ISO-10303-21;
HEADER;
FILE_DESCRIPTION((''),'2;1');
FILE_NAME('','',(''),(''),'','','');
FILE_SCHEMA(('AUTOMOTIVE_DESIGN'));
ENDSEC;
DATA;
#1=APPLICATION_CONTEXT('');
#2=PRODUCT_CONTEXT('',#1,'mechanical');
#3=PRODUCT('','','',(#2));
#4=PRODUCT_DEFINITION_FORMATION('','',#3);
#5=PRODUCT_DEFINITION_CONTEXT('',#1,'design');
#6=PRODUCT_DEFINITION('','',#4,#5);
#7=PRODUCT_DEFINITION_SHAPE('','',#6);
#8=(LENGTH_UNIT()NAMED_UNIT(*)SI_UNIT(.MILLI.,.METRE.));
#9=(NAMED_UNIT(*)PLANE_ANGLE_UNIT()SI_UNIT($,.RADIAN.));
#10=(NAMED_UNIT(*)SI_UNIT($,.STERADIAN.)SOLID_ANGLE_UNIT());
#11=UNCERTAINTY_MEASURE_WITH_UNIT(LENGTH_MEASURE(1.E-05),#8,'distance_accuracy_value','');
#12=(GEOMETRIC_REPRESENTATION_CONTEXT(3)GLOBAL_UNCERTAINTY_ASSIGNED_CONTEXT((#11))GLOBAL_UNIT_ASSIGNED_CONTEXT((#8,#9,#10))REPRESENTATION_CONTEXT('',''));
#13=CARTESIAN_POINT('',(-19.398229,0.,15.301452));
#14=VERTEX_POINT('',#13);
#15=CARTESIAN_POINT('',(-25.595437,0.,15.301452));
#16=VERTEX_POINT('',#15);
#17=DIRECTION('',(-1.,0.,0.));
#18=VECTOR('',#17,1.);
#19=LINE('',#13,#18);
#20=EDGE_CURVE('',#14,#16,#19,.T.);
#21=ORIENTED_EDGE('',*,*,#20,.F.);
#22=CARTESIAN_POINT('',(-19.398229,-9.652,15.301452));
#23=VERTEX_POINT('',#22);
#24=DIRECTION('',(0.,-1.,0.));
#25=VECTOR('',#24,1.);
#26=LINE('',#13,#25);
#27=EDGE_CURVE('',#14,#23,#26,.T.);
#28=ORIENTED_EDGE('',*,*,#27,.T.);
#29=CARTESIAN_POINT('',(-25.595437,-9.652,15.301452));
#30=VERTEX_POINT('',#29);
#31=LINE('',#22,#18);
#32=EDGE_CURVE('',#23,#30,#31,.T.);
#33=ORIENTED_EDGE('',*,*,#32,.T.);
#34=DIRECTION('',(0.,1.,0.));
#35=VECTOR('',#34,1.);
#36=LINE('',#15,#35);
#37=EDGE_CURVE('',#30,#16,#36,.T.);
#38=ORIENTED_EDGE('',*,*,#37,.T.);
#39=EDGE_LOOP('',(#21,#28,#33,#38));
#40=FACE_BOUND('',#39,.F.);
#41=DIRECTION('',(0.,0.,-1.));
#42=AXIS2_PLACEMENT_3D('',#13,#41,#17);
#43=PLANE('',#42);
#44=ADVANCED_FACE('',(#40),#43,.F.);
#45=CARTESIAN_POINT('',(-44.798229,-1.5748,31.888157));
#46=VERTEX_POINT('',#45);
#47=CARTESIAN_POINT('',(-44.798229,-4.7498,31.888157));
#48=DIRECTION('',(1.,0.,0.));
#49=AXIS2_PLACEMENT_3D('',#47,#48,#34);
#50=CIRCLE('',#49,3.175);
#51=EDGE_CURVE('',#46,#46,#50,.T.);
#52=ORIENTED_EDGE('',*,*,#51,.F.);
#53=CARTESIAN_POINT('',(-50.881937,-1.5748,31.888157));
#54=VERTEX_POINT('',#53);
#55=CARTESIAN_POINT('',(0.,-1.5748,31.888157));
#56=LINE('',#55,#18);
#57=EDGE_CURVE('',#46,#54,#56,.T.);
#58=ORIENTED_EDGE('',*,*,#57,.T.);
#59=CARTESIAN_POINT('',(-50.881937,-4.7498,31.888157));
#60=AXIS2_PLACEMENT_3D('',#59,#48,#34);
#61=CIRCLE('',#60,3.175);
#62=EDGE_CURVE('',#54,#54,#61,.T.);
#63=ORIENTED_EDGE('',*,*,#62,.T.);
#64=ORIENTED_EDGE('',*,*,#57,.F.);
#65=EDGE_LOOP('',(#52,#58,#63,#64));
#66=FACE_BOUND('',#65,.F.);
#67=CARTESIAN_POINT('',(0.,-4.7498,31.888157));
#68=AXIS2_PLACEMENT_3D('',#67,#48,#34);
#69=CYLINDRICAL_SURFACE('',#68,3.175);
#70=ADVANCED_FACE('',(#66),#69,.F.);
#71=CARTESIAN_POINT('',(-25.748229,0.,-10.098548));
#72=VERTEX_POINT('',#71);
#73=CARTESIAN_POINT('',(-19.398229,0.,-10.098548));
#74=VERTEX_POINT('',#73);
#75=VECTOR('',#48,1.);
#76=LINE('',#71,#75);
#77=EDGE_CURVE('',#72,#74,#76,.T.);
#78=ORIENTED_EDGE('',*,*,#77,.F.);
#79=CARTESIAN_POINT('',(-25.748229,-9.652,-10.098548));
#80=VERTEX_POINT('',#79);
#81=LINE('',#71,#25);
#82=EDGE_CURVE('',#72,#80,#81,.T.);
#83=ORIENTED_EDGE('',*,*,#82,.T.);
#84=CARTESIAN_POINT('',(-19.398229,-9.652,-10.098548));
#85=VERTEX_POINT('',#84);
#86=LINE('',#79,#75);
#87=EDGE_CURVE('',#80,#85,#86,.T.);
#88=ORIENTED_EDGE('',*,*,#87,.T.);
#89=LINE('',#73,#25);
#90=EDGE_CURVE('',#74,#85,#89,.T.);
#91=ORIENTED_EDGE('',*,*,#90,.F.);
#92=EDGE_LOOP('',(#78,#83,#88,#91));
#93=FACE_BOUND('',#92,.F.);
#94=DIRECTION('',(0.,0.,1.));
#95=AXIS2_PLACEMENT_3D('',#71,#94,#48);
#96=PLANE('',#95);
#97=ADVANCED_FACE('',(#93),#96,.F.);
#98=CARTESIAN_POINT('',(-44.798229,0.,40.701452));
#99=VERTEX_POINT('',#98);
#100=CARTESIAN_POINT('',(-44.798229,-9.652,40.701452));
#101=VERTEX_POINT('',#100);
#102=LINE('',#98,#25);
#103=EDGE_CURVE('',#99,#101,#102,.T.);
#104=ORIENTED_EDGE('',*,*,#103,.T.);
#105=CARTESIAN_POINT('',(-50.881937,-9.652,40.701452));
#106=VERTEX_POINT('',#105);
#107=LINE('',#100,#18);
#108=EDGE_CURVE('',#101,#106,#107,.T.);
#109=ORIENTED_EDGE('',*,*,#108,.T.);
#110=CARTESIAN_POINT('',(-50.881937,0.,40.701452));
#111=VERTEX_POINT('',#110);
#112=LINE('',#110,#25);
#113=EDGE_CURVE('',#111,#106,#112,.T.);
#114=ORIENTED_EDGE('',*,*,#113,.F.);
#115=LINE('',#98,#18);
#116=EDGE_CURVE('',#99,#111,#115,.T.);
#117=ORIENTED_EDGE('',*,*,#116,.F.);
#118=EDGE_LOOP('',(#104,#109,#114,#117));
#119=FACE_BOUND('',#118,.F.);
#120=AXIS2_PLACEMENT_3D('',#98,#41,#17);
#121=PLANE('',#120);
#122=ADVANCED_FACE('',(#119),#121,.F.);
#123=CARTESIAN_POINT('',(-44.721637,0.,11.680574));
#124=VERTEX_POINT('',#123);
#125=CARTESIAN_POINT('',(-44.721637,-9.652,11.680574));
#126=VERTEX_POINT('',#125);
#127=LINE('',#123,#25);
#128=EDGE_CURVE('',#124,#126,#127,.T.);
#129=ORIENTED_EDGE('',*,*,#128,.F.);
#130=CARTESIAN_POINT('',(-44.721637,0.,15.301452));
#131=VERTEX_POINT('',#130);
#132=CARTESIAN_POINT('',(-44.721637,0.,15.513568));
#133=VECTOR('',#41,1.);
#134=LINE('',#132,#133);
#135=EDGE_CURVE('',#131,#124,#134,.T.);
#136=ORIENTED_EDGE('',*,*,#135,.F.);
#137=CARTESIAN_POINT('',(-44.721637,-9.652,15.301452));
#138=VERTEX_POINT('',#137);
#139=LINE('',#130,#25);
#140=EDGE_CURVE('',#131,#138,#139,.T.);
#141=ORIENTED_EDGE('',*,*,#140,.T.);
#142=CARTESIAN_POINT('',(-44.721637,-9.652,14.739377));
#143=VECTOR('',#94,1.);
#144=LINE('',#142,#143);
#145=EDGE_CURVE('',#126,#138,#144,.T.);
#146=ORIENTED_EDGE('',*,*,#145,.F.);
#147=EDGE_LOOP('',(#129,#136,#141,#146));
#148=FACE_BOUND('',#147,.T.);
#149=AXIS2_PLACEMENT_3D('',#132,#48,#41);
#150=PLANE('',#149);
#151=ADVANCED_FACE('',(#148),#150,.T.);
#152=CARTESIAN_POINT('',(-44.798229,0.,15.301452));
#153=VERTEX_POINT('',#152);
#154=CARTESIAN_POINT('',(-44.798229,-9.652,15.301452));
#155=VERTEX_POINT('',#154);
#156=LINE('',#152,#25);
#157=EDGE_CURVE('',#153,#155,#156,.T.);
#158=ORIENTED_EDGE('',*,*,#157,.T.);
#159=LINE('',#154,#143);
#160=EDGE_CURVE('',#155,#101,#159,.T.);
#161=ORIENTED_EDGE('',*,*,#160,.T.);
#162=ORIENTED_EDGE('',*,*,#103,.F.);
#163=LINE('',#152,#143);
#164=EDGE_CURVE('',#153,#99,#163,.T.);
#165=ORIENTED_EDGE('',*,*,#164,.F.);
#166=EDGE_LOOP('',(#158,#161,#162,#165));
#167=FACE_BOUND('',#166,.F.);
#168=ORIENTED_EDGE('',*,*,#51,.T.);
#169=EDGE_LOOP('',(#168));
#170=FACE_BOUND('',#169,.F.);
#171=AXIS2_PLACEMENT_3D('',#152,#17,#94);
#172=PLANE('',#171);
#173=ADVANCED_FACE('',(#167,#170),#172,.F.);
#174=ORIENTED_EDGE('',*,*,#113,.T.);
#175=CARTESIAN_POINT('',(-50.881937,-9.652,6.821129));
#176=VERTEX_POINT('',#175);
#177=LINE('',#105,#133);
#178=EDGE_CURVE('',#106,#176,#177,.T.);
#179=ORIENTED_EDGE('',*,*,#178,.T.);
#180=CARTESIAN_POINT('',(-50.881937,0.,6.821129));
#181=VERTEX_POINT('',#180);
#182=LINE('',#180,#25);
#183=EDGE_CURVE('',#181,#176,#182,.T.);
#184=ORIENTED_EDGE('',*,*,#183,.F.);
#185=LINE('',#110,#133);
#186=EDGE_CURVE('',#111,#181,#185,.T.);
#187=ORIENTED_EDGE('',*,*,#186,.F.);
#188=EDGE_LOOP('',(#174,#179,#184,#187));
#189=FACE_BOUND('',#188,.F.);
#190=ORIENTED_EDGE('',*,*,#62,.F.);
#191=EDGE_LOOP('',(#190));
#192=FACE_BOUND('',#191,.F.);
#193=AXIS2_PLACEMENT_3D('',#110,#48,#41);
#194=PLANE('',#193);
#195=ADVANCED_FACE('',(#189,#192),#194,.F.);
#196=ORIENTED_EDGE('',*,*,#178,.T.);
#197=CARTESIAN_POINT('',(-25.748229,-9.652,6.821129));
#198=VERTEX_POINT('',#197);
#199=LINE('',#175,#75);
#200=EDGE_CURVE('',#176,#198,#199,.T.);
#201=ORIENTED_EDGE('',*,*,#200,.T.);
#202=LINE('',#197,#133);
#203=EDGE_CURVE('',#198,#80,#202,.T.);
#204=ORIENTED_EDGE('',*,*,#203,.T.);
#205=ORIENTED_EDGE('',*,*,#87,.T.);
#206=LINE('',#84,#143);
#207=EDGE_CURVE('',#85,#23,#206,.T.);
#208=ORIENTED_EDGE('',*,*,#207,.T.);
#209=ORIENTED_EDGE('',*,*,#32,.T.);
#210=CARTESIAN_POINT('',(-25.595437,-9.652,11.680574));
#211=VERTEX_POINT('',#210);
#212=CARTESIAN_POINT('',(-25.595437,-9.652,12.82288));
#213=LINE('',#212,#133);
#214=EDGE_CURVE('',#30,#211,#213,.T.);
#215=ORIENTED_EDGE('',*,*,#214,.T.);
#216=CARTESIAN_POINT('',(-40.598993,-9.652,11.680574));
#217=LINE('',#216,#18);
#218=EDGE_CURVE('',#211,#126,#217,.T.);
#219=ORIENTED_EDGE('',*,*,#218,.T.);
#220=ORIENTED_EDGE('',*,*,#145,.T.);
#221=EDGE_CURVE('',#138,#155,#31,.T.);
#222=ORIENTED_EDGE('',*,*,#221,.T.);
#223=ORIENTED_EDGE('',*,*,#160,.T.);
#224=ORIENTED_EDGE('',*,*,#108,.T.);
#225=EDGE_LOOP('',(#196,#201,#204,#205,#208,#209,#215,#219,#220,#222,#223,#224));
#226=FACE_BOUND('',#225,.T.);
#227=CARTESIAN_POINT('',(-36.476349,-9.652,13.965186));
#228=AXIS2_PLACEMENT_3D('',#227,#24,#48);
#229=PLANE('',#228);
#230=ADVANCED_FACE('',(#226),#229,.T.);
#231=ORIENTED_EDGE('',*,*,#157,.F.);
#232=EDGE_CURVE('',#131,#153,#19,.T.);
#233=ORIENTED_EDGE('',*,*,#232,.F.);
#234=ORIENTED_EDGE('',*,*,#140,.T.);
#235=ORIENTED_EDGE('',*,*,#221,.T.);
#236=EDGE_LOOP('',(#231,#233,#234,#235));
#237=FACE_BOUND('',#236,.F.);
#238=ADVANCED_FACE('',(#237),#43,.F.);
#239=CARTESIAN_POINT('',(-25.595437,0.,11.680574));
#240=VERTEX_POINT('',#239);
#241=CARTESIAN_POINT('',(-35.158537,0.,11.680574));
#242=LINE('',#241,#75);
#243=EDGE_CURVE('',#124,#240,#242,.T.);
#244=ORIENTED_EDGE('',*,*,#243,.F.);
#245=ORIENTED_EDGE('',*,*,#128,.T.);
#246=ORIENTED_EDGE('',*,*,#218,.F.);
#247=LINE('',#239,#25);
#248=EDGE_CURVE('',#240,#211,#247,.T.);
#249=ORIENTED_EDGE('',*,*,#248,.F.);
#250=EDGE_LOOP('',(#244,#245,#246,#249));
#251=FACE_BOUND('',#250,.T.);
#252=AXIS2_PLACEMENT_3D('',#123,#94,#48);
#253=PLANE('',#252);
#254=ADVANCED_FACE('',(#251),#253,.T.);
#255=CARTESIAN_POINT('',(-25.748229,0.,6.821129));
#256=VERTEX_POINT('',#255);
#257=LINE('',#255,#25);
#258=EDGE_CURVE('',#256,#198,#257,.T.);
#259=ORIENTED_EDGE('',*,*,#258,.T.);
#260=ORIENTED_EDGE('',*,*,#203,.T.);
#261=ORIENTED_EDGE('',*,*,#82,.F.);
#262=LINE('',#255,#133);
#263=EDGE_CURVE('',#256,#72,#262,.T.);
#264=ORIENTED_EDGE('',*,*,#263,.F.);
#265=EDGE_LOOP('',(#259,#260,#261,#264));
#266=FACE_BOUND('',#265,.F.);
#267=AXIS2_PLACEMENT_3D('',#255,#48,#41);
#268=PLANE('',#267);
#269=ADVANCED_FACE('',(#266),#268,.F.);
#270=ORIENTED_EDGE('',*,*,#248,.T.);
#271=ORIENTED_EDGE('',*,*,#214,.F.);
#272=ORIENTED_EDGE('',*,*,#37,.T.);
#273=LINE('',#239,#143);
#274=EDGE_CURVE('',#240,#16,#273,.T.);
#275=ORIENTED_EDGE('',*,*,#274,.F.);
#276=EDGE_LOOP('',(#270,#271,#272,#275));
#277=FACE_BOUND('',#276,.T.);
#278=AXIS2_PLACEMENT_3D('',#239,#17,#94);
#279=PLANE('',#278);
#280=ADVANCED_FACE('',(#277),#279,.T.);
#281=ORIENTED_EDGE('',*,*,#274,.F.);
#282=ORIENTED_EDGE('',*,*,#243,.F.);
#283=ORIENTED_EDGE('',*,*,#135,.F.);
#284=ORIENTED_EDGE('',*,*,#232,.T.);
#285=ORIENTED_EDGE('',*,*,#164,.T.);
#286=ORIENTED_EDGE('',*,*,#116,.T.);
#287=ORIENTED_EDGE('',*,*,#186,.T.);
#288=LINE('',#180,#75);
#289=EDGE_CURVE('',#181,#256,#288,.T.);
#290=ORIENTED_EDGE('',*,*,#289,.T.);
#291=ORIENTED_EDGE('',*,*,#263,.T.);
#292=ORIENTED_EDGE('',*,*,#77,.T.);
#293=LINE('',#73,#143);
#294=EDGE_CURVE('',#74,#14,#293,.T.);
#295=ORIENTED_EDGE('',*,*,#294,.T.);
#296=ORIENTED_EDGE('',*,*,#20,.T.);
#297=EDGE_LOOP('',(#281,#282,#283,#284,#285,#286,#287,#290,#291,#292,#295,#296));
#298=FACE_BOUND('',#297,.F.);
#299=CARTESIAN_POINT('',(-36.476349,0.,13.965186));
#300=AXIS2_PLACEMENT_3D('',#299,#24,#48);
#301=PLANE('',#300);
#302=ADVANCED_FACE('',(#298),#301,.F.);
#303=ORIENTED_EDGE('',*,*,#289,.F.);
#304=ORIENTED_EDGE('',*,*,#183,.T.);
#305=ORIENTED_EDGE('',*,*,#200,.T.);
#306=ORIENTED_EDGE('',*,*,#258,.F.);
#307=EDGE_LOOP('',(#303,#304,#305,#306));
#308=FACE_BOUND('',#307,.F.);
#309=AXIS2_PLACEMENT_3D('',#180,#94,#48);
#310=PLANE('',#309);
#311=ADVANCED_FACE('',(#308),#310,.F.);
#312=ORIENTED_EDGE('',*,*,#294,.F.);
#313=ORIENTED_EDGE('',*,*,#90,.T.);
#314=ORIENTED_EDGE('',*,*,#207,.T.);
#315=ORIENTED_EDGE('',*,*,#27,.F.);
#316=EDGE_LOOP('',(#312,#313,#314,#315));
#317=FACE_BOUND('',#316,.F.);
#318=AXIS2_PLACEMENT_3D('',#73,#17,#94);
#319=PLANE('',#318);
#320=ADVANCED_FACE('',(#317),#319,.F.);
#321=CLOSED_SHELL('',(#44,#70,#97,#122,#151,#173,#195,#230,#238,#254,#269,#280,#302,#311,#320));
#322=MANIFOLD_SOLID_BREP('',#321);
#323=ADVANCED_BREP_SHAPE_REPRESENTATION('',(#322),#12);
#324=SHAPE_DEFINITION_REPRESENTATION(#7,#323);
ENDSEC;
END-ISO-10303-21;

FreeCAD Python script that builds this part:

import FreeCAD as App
import Part
import Sketcher

V = App.Vector
Q = App.Units.Quantity

doc = App.newDocument("Part")
body = doc.addObject("PartDesign::Body", "Body")

# Sketch on XZ plane
sketch1 = body.newObject("Sketcher::SketchObject", "Sketch")
sketch1.AttachmentSupport = (doc.getObject("XZ_Plane"), [""])
sketch1.MapMode = "FlatFace"
sketch1.addGeometry(Part.LineSegment(V(-44.798229, 15.301452, 0), V(-44.798229, 40.701452, 0)), False)
sketch1.addGeometry(Part.LineSegment(V(-44.798229, 40.701452, 0), V(-50.881937, 40.701452, 0)), False)
sketch1.addGeometry(Part.LineSegment(V(-50.881937, 40.701452, 0), V(-50.881937, 6.821129, 0)), False)
sketch1.addGeometry(Part.LineSegment(V(-50.881937, 6.821129, 0), V(-25.748229, 6.821129, 0)), False)
sketch1.addGeometry(Part.LineSegment(V(-25.748229, 6.821129, 0), V(-25.748229, -10.098548, 0)), False)
sketch1.addGeometry(Part.LineSegment(V(-25.748229, -10.098548, 0), V(-19.398229, -10.098548, 0)), False)
sketch1.addGeometry(Part.LineSegment(V(-19.398229, -10.098548, 0), V(-19.398229, 15.301452, 0)), False)
sketch1.addGeometry(Part.LineSegment(V(-19.398229, 15.301452, 0), V(-44.798229, 15.301452, 0)), False)
sketch1.addConstraint(Sketcher.Constraint("Coincident", 0, 2, 1, 1))
sketch1.addConstraint(Sketcher.Constraint("Coincident", 1, 2, 2, 1))
sketch1.addConstraint(Sketcher.Constraint("Coincident", 2, 2, 3, 1))
sketch1.addConstraint(Sketcher.Constraint("Coincident", 3, 2, 4, 1))
sketch1.addConstraint(Sketcher.Constraint("Coincident", 4, 2, 5, 1))
sketch1.addConstraint(Sketcher.Constraint("Coincident", 5, 2, 6, 1))
sketch1.addConstraint(Sketcher.Constraint("Coincident", 6, 2, 7, 1))
sketch1.addConstraint(Sketcher.Constraint("Coincident", 7, 2, 0, 1))
sketch1.addConstraint(Sketcher.Constraint("Vertical", 0))
sketch1.addConstraint(Sketcher.Constraint("Horizontal", 1))
sketch1.addConstraint(Sketcher.Constraint("Vertical", 2))
sketch1.addConstraint(Sketcher.Constraint("Horizontal", 3))
sketch1.addConstraint(Sketcher.Constraint("Vertical", 4))
sketch1.addConstraint(Sketcher.Constraint("Horizontal", 5))
sketch1.addConstraint(Sketcher.Constraint("Vertical", 6))
sketch1.addConstraint(Sketcher.Constraint("Horizontal", 7))
sketch1.addConstraint(Sketcher.Constraint("Equal", 7, 0))
sketch1.addConstraint(Sketcher.Constraint("Equal", 0, 6))
sketch1.addConstraint(Sketcher.Constraint("DistanceX", 7, 2, 7, 1, Q("1 in")))
sketch1.addConstraint(Sketcher.Constraint("DistanceX", 5, 1, 5, 2, Q("0.25 in")))
sketch1.addConstraint(Sketcher.Constraint("DistanceX", 1, 2, 1, 1, 6.083708))
sketch1.addConstraint(Sketcher.Constraint("DistanceY", 2, 2, 2, 1, 33.880323))
sketch1.addConstraint(Sketcher.Constraint("DistanceX", 0, 2, -1, 1, 44.798229))
sketch1.addConstraint(Sketcher.Constraint("DistanceY", -1, 1, 2, 2, 6.821129))
pad1 = body.newObject("PartDesign::Pad", "Pad")
pad1.Profile = sketch1
pad1.Length = Q("0.38 in")

# Sketch on YZ plane
sketch2 = body.newObject("Sketcher::SketchObject", "Sketch001")
sketch2.AttachmentSupport = (doc.getObject("YZ_Plane"), [""])
sketch2.MapMode = "FlatFace"
sketch2.addGeometry(Part.Circle(V(-4.7498, 31.888157, 0), V(0, 0, 1), 3.175), False)
sketch2.addConstraint(Sketcher.Constraint("Diameter", 0, Q("0.25 in")))
sketch2.addConstraint(Sketcher.Constraint("DistanceX", 0, 3, -1, 1, Q("0.187 in")))
sketch2.addConstraint(Sketcher.Constraint("DistanceY", -1, 1, 0, 3, 31.888157))
pocket1 = body.newObject("PartDesign::Pocket", "Pocket")
pocket1.Profile = sketch2
pocket1.Length = Q("2.2 in")

# Sketch on XZ plane
sketch3 = body.newObject("Sketcher::SketchObject", "Sketch002")
sketch3.AttachmentSupport = (doc.getObject("XZ_Plane"), [""])
sketch3.MapMode = "FlatFace"
sketch3.addGeometry(Part.LineSegment(V(-44.721637, 11.680574, 0), V(-25.595437, 11.680574, 0)), False)
sketch3.addGeometry(Part.LineSegment(V(-25.595437, 11.680574, 0), V(-25.595437, 15.513568, 0)), False)
sketch3.addGeometry(Part.LineSegment(V(-25.595437, 15.513568, 0), V(-44.721637, 15.513568, 0)), False)
sketch3.addGeometry(Part.LineSegment(V(-44.721637, 15.513568, 0), V(-44.721637, 11.680574, 0)), False)
sketch3.addConstraint(Sketcher.Constraint("Coincident", 0, 2, 1, 1))
sketch3.addConstraint(Sketcher.Constraint("Coincident", 1, 2, 2, 1))
sketch3.addConstraint(Sketcher.Constraint("Coincident", 2, 2, 3, 1))
sketch3.addConstraint(Sketcher.Constraint("Coincident", 3, 2, 0, 1))
sketch3.addConstraint(Sketcher.Constraint("Horizontal", 0))
sketch3.addConstraint(Sketcher.Constraint("Vertical", 1))
sketch3.addConstraint(Sketcher.Constraint("Horizontal", 2))
sketch3.addConstraint(Sketcher.Constraint("Vertical", 3))
sketch3.addConstraint(Sketcher.Constraint("DistanceX", 0, 1, 0, 2, Q("0.753 in")))
sketch3.addConstraint(Sketcher.Constraint("DistanceY", 1, 1, 1, 2, 3.832994))
sketch3.addConstraint(Sketcher.Constraint("DistanceY", -1, 1, 1, 2, 15.513568))
sketch3.addConstraint(Sketcher.Constraint("DistanceX", 0, 2, -1, 1, 25.595437))
pocket2 = body.newObject("PartDesign::Pocket", "Pocket001")
pocket2.Profile = sketch3
pocket2.Length = Q("1 in")
pocket2.Reversed = True

doc.recompute()
